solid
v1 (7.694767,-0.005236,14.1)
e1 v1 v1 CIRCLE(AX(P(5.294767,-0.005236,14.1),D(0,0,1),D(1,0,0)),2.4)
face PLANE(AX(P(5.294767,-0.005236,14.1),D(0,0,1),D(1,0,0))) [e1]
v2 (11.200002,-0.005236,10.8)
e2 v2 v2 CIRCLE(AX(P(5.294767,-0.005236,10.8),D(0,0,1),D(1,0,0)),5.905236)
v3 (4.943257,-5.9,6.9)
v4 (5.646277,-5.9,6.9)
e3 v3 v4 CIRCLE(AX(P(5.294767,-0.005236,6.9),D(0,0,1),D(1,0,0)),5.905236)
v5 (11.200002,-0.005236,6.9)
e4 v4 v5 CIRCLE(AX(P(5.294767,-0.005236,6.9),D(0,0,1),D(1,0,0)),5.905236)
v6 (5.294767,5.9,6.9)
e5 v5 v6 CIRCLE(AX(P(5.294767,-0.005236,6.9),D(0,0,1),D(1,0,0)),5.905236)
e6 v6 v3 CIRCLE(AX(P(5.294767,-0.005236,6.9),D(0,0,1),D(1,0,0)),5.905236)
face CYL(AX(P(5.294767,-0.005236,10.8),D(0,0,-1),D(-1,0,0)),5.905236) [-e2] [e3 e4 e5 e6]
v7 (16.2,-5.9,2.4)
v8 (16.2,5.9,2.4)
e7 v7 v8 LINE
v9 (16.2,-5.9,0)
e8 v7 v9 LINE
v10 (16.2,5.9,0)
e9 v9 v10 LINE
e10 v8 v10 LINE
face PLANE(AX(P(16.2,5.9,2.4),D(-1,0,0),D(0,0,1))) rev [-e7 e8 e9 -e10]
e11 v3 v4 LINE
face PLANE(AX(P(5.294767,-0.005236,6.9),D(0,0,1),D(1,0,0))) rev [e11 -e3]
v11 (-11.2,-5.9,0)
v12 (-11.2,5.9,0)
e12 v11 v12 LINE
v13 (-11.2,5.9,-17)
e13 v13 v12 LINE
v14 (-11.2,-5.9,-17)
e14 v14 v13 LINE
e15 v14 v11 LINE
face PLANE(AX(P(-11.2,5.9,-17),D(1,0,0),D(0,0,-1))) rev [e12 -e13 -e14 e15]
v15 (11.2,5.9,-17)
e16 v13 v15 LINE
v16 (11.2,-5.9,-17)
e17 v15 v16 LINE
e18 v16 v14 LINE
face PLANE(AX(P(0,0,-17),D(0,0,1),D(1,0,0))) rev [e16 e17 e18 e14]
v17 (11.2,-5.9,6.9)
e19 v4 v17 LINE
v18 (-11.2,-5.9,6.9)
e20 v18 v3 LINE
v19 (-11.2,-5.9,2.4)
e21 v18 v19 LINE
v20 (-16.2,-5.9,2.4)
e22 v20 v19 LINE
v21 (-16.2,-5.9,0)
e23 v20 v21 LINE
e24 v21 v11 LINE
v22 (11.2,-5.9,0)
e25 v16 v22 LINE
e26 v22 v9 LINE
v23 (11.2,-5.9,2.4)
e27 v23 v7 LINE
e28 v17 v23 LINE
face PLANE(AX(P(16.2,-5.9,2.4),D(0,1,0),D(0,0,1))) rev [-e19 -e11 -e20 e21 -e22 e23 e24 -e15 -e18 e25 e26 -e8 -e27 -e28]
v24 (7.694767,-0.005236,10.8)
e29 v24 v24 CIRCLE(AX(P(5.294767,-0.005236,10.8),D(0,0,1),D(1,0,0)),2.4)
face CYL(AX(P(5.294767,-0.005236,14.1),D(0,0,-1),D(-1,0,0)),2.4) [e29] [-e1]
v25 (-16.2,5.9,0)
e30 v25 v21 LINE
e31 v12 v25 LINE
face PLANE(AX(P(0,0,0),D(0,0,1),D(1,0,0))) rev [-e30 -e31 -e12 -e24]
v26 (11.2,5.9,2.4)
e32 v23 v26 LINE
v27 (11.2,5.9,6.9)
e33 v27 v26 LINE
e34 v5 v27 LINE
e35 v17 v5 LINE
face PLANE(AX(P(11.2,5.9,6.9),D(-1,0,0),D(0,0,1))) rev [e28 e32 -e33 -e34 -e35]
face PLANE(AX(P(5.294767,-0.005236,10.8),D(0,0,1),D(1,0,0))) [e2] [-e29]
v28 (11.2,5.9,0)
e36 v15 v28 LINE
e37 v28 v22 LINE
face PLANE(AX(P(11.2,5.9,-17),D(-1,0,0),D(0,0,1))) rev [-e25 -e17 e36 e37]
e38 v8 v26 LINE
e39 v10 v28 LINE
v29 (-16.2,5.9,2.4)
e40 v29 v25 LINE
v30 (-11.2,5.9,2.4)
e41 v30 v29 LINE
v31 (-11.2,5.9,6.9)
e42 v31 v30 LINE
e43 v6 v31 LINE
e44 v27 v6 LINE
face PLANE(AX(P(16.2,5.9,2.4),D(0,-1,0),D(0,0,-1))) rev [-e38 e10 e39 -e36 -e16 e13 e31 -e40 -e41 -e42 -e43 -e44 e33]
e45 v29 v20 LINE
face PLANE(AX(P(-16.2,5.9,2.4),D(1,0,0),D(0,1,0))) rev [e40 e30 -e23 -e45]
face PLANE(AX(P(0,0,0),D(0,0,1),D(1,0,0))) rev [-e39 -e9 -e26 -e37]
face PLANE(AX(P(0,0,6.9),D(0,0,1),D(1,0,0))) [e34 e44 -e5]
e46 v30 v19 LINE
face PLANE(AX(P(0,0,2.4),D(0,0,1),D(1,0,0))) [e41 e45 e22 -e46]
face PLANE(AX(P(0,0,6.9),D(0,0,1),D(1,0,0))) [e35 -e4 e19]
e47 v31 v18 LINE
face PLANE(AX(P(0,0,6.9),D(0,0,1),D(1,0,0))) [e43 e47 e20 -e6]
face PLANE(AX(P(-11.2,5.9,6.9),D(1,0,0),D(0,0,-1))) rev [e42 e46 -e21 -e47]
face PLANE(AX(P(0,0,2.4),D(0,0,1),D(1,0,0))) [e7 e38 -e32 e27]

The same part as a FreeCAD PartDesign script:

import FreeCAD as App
import Part
import Sketcher


def add_polygon(sketch, points):
    """Adds a closed chain of lines whose ends are joined by coincident constraints."""
    first, n = sketch.GeometryCount, len(points)
    for a, b in zip(points, points[1:] + points[:1]):
        sketch.addGeometry(Part.LineSegment(App.Vector(*a, 0), App.Vector(*b, 0)), False)
    for i in range(n):
        sketch.addConstraint(Sketcher.Constraint("Coincident", first + i, 2, first + (i + 1) % n, 1))

doc = App.newDocument("Part")
params = doc.addObject("Spreadsheet::Sheet", "Params")
for row, (alias, value) in enumerate([
    ("sketch1_width", "32.4 mm"),
    ("sketch1_height", "11.8 mm"),
    ("pad1_length", "2.4 mm"),
    ("sketch2_width", "22.4 mm"),
    ("sketch2_height", "11.8 mm"),
    ("pad2_length", "4.5 mm"),
    ("pad3_length", "3.9 mm"),
    ("sketch4_diameter", "4.8 mm"),
    ("pad4_length", "3.3 mm"),
    ("sketch5_width", "22.4 mm"),
    ("sketch5_height", "11.8 mm"),
    ("pad5_length", "17 mm"),
], start=1):
    params.set(f"A{row}", alias)
    params.set(f"B{row}", "=" + value)
    params.setAlias(f"B{row}", alias)

body = doc.addObject("PartDesign::Body", "Body")

sketch1 = body.newObject("Sketcher::SketchObject", "Sketch")
sketch1.AttachmentSupport = (doc.getObject("XY_Plane"), [""])
sketch1.MapMode = "FlatFace"
add_polygon(sketch1, [(-16, -6), (16, -6), (16, 6), (-16, 6)])
sketch1.addConstraint([
    Sketcher.Constraint("Horizontal", 0),
    Sketcher.Constraint("Vertical", 1),
    Sketcher.Constraint("Horizontal", 2),
    Sketcher.Constraint("Vertical", 3),
    Sketcher.Constraint("Symmetric", 0, 2, 2, 2, -1, 1),
    Sketcher.Constraint("DistanceX", 0, 1, 0, 2, 32.4),
    Sketcher.Constraint("DistanceY", 1, 1, 1, 2, 11.8),
])
sketch1.setExpression("Constraints[9]", "Params.sketch1_width")
sketch1.setExpression("Constraints[10]", "Params.sketch1_height")
pad1 = body.newObject("PartDesign::Pad", "Pad")
pad1.Profile = sketch1
pad1.setExpression("Length", "Params.pad1_length")

sketch2 = body.newObject("Sketcher::SketchObject", "Sketch001")
sketch2.AttachmentSupport = (doc.getObject("XY_Plane"), [""])
sketch2.MapMode = "FlatFace"
sketch2.AttachmentOffset = App.Placement(App.Vector(0, 0, 2.4), App.Rotation())
add_polygon(sketch2, [(-11, 6), (-11, -6), (11, -6), (11, 6)])
sketch2.addConstraint([
    Sketcher.Constraint("Vertical", 0),
    Sketcher.Constraint("Horizontal", 1),
    Sketcher.Constraint("Vertical", 2),
    Sketcher.Constraint("Horizontal", 3),
    Sketcher.Constraint("Symmetric", 0, 2, 2, 2, -1, 1),
    Sketcher.Constraint("DistanceX", 1, 1, 1, 2, 22.4),
    Sketcher.Constraint("DistanceY", 0, 2, 0, 1, 11.8),
])
sketch2.setExpression("Constraints[9]", "Params.sketch2_width")
sketch2.setExpression("Constraints[10]", "Params.sketch2_height")
pad2 = body.newObject("PartDesign::Pad", "Pad001")
pad2.Profile = sketch2
pad2.setExpression("Length", "Params.pad2_length")

sketch3 = body.newObject("Sketcher::SketchObject", "Sketch002")
sketch3.AttachmentSupport = (doc.getObject("XY_Plane"), [""])
sketch3.MapMode = "FlatFace"
sketch3.AttachmentOffset = App.Placement(App.Vector(0, 0, 6.9), App.Rotation())
sketch3.addGeometry(Part.Circle(App.Vector(5, 0, 0), App.Vector(0, 0, 1), 6), False)
sketch3.addConstraint([
    Sketcher.Constraint("Diameter", 0, 11.810471),
    Sketcher.Constraint("DistanceX", -1, 1, 0, 3, 5.294767),
    Sketcher.Constraint("DistanceY", 0, 3, -1, 1, 0.005236),
])
pad3 = body.newObject("PartDesign::Pad", "Pad002")
pad3.Profile = sketch3
pad3.setExpression("Length", "Params.pad3_length")

sketch4 = body.newObject("Sketcher::SketchObject", "Sketch003")
sketch4.AttachmentSupport = (doc.getObject("XY_Plane"), [""])
sketch4.MapMode = "FlatFace"
sketch4.AttachmentOffset = App.Placement(App.Vector(0, 0, 10.8), App.Rotation())
sketch4.addGeometry(Part.Circle(App.Vector(5.3, 0, 0), App.Vector(0, 0, 1), 2.4), False)
sketch4.addConstraint([
    Sketcher.Constraint("Diameter", 0, 4.8),
    Sketcher.Constraint("DistanceX", -1, 1, 0, 3, 5.294767),
    Sketcher.Constraint("DistanceY", 0, 3, -1, 1, 0.005236),
])
sketch4.setExpression("Constraints[0]", "Params.sketch4_diameter")
pad4 = body.newObject("PartDesign::Pad", "Pad003")
pad4.Profile = sketch4
pad4.setExpression("Length", "Params.pad4_length")

sketch5 = body.newObject("Sketcher::SketchObject", "Sketch004")
sketch5.AttachmentSupport = (doc.getObject("XY_Plane"), [""])
sketch5.MapMode = "FlatFace"
add_polygon(sketch5, [(-11, -6), (-11, 6), (11, 6), (11, -6)])
sketch5.addConstraint([
    Sketcher.Constraint("Vertical", 0),
    Sketcher.Constraint("Horizontal", 1),
    Sketcher.Constraint("Vertical", 2),
    Sketcher.Constraint("Horizontal", 3),
    Sketcher.Constraint("Symmetric", 0, 2, 2, 2, -1, 1),
    Sketcher.Constraint("DistanceX", 1, 1, 1, 2, 22.4),
    Sketcher.Constraint("DistanceY", 0, 1, 0, 2, 11.8),
])
sketch5.setExpression("Constraints[9]", "Params.sketch5_width")
sketch5.setExpression("Constraints[10]", "Params.sketch5_height")
pad5 = body.newObject("PartDesign::Pad", "Pad004")
pad5.Profile = sketch5
pad5.setExpression("Length", "Params.pad5_length")
pad5.Reversed = True

doc.recompute()
